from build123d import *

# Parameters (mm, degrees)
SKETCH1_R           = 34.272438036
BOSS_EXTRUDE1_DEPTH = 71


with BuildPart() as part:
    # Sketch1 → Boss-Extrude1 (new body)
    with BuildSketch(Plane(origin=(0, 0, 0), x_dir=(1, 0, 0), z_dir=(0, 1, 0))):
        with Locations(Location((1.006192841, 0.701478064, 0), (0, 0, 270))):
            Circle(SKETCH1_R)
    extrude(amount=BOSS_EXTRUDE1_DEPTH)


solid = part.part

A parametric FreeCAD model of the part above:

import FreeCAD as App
import Part
import Sketcher
from FreeCAD import Vector
Q = App.Units.Quantity

doc = App.newDocument("Part")
body = doc.addObject("PartDesign::Body", "Body")

# Sketch on XZ plane
sketch1 = body.newObject("Sketcher::SketchObject", "Sketch")
sketch1.AttachmentSupport = (doc.getObject("XZ_Plane"), [""])
sketch1.MapMode = "FlatFace"
sketch1.addGeometry(Part.Circle(Vector(1.006193, -0.701478, 0), Vector(0, 0, 1), 34.272438), False)
sketch1.addConstraint([
    Sketcher.Constraint("Diameter", 0, Q("68.544876 mm")),
    Sketcher.Constraint("DistanceY", 0, 3, -1, 1, Q("0.701478 mm")),
    Sketcher.Constraint("DistanceX", -1, 1, 0, 3, Q("1.006193 mm")),
])
pad1 = body.newObject("PartDesign::Pad", "Pad")
pad1.Profile = sketch1
pad1.Length = 71
pad1.Reversed = True

doc.recompute()
